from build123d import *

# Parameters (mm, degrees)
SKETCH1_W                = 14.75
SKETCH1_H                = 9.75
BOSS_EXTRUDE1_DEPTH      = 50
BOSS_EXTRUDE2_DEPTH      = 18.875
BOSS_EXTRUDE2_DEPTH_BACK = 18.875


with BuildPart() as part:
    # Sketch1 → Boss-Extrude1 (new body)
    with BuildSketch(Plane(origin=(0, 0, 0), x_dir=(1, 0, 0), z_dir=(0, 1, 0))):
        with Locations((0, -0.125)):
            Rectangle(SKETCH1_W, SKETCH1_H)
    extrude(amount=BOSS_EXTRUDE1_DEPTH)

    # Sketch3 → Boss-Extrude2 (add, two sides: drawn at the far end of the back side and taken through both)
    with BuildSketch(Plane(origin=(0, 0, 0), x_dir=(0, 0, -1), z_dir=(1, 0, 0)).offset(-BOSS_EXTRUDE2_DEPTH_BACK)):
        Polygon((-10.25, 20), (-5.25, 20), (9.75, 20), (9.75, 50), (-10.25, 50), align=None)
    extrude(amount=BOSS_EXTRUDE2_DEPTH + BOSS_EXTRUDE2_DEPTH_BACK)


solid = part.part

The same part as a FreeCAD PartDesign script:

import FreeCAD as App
import Part
import Sketcher

V = App.Vector

doc = App.newDocument("Part")
body = doc.addObject("PartDesign::Body", "Body")

sketch1 = body.newObject("Sketcher::SketchObject", "Sketch")
sketch1.AttachmentSupport = (doc.getObject("XZ_Plane"), [""])
sketch1.MapMode = "FlatFace"
sketch1.addGeometry(Part.LineSegment(V(-7, -5, 0), V(-7, 5, 0)), False)
sketch1.addGeometry(Part.LineSegment(V(-7, 5, 0), V(7, 5, 0)), False)
sketch1.addGeometry(Part.LineSegment(V(7, 5, 0), V(7, -5, 0)), False)
sketch1.addGeometry(Part.LineSegment(V(7, -5, 0), V(-7, -5, 0)), False)
sketch1.addConstraint(Sketcher.Constraint("Coincident", 0, 2, 1, 1))
sketch1.addConstraint(Sketcher.Constraint("Coincident", 1, 2, 2, 1))
sketch1.addConstraint(Sketcher.Constraint("Coincident", 2, 2, 3, 1))
sketch1.addConstraint(Sketcher.Constraint("Coincident", 3, 2, 0, 1))
sketch1.addConstraint(Sketcher.Constraint("Vertical", 0))
sketch1.addConstraint(Sketcher.Constraint("Horizontal", 1))
sketch1.addConstraint(Sketcher.Constraint("Vertical", 2))
sketch1.addConstraint(Sketcher.Constraint("Horizontal", 3))
sketch1.addConstraint(Sketcher.Constraint("DistanceY", -1, 1, 0, 2, 5.0))
sketch1.addConstraint(Sketcher.Constraint("DistanceX", 1, 1, 1, 2, 14.75))
sketch1.addConstraint(Sketcher.Constraint("DistanceY", 0, 1, 0, 2, 9.75))
sketch1.addConstraint(Sketcher.Constraint("DistanceX", 0, 2, -1, 1, 7.375))
pad1 = body.newObject("PartDesign::Pad", "Pad")
pad1.Profile = sketch1
pad1.Length = 50
pad1.Reversed = True

sketch2 = body.newObject("Sketcher::SketchObject", "Sketch001")
sketch2.AttachmentSupport = (doc.getObject("YZ_Plane"), [""])
sketch2.MapMode = "FlatFace"
sketch2.addGeometry(Part.LineSegment(V(20, 10, 0), V(20, -10, 0)), False)
sketch2.addGeometry(Part.LineSegment(V(20, -10, 0), V(50, -10, 0)), False)
sketch2.addGeometry(Part.LineSegment(V(50, -10, 0), V(50, 10, 0)), False)
sketch2.addGeometry(Part.LineSegment(V(50, 10, 0), V(20, 10, 0)), False)
sketch2.addConstraint(Sketcher.Constraint("Coincident", 0, 2, 1, 1))
sketch2.addConstraint(Sketcher.Constraint("Coincident", 1, 2, 2, 1))
sketch2.addConstraint(Sketcher.Constraint("Coincident", 2, 2, 3, 1))
sketch2.addConstraint(Sketcher.Constraint("Coincident", 3, 2, 0, 1))
sketch2.addConstraint(Sketcher.Constraint("Vertical", 0))
sketch2.addConstraint(Sketcher.Constraint("Horizontal", 1))
sketch2.addConstraint(Sketcher.Constraint("Vertical", 2))
sketch2.addConstraint(Sketcher.Constraint("Horizontal", 3))
sketch2.addConstraint(Sketcher.Constraint("DistanceX", 1, 1, 1, 2, 30.0))
sketch2.addConstraint(Sketcher.Constraint("DistanceY", 0, 2, 0, 1, 20.0))
sketch2.addConstraint(Sketcher.Constraint("DistanceX", -1, 1, 0, 2, 20.0))
sketch2.addConstraint(Sketcher.Constraint("DistanceY", 0, 2, -1, 1, 9.75))
pad2 = body.newObject("PartDesign::Pad", "Pad001")
pad2.Profile = sketch2
pad2.Type = "TwoLengths"
pad2.Length = 18.875
pad2.Length2 = 18.875

doc.recompute()
